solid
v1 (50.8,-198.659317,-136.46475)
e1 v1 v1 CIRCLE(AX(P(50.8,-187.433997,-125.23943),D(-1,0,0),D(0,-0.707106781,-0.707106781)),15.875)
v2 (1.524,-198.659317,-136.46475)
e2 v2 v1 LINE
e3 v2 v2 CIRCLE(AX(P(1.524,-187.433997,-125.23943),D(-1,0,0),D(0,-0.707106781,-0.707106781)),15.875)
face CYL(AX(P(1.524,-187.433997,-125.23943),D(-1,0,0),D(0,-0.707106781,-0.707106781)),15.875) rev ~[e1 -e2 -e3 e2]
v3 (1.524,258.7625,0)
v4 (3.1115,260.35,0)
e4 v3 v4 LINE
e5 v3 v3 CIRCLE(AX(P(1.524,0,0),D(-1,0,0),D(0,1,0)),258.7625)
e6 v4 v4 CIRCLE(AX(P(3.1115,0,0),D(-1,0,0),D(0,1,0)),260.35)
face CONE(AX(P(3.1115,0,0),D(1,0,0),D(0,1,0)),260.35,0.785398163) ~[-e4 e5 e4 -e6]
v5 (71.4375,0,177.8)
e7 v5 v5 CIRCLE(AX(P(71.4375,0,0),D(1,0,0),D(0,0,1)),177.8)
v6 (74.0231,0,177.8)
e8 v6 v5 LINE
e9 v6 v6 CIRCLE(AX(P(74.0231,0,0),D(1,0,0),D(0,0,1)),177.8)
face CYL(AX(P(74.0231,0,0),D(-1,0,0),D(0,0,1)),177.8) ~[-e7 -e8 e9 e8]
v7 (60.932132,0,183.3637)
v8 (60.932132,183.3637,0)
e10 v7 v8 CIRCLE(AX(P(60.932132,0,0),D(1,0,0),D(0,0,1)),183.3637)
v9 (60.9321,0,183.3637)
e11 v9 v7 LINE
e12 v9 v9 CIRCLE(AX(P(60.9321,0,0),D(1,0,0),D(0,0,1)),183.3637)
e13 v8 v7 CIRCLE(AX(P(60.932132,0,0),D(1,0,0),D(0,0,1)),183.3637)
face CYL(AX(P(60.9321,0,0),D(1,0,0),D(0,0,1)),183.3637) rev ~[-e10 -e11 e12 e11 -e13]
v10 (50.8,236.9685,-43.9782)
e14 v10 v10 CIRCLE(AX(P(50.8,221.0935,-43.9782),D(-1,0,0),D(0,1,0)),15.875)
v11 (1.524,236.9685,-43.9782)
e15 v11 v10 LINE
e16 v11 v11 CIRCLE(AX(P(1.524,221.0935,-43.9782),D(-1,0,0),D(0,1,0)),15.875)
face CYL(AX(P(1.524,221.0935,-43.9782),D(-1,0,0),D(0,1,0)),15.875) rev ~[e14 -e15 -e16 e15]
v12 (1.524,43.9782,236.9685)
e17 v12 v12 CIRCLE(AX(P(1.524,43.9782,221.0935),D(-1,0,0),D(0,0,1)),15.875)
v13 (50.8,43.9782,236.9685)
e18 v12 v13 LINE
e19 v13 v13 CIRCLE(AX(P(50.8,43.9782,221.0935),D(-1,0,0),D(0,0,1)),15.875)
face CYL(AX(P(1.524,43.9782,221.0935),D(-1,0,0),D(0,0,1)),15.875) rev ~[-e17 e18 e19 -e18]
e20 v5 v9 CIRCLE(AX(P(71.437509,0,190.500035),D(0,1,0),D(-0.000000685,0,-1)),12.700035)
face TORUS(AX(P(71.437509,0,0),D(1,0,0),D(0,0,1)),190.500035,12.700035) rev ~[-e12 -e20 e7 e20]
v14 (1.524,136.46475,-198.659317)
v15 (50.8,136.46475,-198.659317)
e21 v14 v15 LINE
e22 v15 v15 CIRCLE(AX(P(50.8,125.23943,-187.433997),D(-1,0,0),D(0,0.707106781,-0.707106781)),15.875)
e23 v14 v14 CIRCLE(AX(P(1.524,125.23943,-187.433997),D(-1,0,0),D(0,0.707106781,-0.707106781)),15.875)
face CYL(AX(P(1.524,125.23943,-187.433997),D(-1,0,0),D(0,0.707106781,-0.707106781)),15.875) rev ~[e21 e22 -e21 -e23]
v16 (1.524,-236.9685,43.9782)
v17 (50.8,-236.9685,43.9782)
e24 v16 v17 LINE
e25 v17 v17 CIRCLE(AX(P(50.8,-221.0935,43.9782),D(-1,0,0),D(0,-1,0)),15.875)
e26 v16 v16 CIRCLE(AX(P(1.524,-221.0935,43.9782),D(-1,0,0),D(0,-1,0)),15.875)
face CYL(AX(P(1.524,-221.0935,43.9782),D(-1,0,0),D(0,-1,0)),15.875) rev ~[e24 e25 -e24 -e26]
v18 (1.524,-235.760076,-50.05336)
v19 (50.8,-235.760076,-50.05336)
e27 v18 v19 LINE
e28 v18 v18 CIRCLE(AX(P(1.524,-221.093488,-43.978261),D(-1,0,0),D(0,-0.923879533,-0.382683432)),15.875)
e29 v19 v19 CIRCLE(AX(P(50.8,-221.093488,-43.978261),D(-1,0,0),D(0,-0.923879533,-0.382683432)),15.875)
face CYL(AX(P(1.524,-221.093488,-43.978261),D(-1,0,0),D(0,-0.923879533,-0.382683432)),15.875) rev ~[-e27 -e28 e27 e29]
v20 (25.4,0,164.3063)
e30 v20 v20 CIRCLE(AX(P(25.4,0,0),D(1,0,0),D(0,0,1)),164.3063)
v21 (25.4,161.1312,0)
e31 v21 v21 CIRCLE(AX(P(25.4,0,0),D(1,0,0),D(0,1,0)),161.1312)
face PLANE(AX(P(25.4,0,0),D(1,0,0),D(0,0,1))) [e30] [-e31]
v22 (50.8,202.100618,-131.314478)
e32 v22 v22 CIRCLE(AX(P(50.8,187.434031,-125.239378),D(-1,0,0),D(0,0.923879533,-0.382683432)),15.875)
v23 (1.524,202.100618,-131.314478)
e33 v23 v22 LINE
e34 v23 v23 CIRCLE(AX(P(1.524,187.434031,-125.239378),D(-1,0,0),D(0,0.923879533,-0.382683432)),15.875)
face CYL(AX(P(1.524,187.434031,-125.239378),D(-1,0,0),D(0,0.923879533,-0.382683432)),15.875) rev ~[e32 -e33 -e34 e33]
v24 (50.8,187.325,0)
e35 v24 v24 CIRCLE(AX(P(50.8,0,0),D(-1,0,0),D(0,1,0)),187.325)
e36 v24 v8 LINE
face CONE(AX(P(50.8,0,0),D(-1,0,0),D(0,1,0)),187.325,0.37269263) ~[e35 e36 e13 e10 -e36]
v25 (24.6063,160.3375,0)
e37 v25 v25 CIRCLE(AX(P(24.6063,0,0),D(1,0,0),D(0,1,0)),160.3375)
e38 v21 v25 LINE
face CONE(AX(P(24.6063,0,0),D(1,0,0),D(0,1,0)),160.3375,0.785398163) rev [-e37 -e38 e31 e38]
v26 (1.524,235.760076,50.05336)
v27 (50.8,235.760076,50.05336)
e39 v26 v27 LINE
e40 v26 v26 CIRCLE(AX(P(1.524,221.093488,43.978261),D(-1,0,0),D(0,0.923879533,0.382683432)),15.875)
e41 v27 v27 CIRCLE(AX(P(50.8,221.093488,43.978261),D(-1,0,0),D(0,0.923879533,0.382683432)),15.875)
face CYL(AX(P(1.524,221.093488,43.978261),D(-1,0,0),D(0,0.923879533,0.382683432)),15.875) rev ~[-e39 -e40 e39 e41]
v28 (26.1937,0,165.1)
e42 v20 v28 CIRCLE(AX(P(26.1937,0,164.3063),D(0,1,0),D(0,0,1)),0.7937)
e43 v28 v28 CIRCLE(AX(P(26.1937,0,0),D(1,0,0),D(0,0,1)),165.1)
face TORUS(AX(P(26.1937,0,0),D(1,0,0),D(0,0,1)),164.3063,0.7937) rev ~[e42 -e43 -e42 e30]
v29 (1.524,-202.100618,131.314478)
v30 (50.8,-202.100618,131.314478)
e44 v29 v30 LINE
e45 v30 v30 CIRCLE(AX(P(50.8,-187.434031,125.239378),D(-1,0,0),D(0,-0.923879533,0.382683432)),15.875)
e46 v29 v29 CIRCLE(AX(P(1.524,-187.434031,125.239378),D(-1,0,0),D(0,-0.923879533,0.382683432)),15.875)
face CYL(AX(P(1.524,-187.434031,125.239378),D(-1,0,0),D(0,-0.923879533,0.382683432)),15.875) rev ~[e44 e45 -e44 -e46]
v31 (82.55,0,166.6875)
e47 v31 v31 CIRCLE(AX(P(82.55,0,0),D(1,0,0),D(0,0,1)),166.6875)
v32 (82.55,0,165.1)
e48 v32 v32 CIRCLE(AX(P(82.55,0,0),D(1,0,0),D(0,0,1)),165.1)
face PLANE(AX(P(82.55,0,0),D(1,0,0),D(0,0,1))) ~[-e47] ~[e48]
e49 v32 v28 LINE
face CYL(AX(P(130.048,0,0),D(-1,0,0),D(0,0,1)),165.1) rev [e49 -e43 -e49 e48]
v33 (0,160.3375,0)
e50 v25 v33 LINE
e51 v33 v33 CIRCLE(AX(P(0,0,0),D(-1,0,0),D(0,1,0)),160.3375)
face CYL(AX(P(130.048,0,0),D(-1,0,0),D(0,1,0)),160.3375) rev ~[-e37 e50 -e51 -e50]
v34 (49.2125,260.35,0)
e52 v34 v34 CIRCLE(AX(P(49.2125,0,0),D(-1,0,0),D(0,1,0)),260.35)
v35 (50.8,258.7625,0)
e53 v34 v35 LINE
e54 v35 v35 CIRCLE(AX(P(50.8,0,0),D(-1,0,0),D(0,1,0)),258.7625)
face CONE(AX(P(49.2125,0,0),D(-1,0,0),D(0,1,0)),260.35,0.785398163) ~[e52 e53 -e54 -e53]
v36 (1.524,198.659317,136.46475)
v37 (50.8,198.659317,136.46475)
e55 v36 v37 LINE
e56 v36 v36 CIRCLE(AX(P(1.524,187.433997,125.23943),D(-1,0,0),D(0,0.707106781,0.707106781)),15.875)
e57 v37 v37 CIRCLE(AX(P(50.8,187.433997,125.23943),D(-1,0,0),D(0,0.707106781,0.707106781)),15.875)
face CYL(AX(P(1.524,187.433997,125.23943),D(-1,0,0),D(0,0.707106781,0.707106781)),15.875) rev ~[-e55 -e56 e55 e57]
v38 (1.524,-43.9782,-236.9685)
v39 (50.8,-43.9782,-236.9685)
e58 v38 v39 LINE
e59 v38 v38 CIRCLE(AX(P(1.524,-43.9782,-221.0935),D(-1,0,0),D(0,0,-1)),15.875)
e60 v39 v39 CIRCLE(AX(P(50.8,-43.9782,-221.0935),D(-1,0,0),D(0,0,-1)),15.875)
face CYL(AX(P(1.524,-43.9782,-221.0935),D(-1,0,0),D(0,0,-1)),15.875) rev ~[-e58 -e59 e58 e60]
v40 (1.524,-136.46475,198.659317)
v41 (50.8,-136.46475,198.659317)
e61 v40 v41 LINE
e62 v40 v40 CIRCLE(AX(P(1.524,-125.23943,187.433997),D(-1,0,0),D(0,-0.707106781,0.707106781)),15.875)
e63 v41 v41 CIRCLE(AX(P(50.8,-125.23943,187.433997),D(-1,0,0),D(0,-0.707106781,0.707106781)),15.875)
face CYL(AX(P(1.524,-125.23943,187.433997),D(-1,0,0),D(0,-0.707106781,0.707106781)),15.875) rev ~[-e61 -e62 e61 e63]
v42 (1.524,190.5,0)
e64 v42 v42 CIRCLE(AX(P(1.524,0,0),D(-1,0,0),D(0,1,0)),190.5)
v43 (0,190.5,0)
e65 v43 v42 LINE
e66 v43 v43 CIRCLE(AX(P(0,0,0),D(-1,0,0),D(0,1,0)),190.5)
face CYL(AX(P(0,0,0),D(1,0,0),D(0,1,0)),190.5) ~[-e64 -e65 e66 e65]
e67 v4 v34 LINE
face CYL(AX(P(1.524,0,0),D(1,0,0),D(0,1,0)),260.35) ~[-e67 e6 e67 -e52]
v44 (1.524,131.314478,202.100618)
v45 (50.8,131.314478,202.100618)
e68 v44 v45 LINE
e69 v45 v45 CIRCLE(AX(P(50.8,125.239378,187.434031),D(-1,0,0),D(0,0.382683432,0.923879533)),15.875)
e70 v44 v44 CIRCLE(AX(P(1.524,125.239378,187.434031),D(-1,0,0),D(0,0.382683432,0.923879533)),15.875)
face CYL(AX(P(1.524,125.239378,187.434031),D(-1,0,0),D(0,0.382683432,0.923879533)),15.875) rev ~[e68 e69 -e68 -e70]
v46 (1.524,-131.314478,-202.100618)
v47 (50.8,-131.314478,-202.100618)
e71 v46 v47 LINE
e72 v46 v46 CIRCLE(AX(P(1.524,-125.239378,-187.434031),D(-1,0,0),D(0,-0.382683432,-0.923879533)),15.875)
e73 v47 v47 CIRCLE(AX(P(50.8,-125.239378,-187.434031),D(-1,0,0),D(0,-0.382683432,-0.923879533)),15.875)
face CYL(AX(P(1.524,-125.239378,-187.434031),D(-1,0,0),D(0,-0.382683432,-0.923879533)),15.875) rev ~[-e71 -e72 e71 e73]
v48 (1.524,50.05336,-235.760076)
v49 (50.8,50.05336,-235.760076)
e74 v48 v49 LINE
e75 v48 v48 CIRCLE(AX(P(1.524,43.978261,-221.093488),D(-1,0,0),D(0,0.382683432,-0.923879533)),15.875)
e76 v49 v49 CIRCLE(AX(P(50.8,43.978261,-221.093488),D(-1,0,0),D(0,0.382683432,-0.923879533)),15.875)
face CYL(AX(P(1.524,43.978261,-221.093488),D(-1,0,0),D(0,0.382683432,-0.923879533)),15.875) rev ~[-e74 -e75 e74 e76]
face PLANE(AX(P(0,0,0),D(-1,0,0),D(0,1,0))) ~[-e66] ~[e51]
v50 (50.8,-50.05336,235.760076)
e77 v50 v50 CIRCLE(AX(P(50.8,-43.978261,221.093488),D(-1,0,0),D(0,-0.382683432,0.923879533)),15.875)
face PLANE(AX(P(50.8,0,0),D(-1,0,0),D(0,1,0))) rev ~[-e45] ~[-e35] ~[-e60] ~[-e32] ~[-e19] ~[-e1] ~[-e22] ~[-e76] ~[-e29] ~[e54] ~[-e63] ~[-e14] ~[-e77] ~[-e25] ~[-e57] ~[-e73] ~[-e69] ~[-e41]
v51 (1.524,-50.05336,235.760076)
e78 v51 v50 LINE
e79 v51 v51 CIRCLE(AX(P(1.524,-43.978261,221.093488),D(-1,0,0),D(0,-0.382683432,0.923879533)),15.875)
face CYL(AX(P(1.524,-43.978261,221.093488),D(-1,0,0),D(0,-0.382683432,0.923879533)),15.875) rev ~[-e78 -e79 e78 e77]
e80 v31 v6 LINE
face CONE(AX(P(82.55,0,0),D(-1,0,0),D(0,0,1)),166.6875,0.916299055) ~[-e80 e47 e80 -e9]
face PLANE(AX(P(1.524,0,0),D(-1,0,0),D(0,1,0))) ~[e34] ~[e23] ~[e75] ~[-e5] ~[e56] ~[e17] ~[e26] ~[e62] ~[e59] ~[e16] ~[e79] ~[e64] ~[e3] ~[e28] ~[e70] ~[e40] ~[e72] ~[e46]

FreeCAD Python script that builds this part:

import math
import FreeCAD as App
import Part
import Sketcher

V = App.Vector
Q = App.Units.Quantity


def edges_at(feature, points):
    """Names of the edges that pass closest to the given points."""
    edges = feature.Shape.Edges
    near = lambda p: min(range(len(edges)), key=lambda i: edges[i].distToShape(Part.Vertex(*p))[0])
    return sorted({f"Edge{near(p) + 1}" for p in points})

doc = App.newDocument("Part")
params = doc.addObject("Spreadsheet::Sheet", "Params")
for row, (alias, value) in enumerate([
    ("sketch1_width", "1.94 in"),
    ("sketch1_width2", "0.06 in"),
    ("sketch1_height", "2.75 in"),
    ("sketch1_height2", "1.1875 in"),
    ("sketch1_height3", "0.0625 in"),
    ("revolution_angle", "360 deg"),
    ("sketch2_diameter", "1.25 in"),
    ("chamfer_size", "0.0625 in"),
    ("sketch3_radius", "0.5 in"),
    ("sketch3_height", "0.0625 in"),
    ("sketch3_width", "4.12 in"),
    ("sketch3_height2", "0.1875 in"),
    ("groove_angle", "360 deg"),
    ("fillet_radius", "0.031248 in"),
    ("chamfer2_size", "0.031248 in"),
], start=1):
    params.set(f"A{row}", alias)
    params.set(f"B{row}", "=" + value)
    params.setAlias(f"B{row}", alias)

body = doc.addObject("PartDesign::Body", "Body")

# Sketch on XY plane
sketch1 = body.newObject("Sketcher::SketchObject", "Sketch")
sketch1.AttachmentSupport = (doc.getObject("XY_Plane"), [""])
sketch1.MapMode = "FlatFace"
sketch1.addGeometry([
    Part.LineSegment(V(0, 190.5, 0), V(0, 160.3375, 0)),  # 0
    Part.LineSegment(V(0, 160.3375, 0), V(130.048, 160.3375, 0)),  # 1
    Part.LineSegment(V(130.048, 160.3375, 0), V(130.048, 161.925, 0)),  # 2
    Part.LineSegment(V(130.048, 161.925, 0), V(115.7676, 161.925, 0)),  # 3
    Part.LineSegment(V(115.7676, 161.925, 0), V(50.8, 187.325, 0)),  # 4
    Part.LineSegment(V(50.8, 187.325, 0), V(50.8, 260.35, 0)),  # 5
    Part.LineSegment(V(50.8, 260.35, 0), V(1.524, 260.35, 0)),  # 6
    Part.LineSegment(V(1.524, 260.35, 0), V(1.524, 190.5, 0)),  # 7
    Part.LineSegment(V(1.524, 190.5, 0), V(0, 190.5, 0)),  # 8
], False)
sketch1.addConstraint([
    Sketcher.Constraint("Coincident", 0, 2, 1, 1),
    Sketcher.Constraint("Coincident", 1, 2, 2, 1),
    Sketcher.Constraint("Coincident", 2, 2, 3, 1),
    Sketcher.Constraint("Coincident", 3, 2, 4, 1),
    Sketcher.Constraint("Coincident", 4, 2, 5, 1),
    Sketcher.Constraint("Coincident", 5, 2, 6, 1),
    Sketcher.Constraint("Coincident", 6, 2, 7, 1),
    Sketcher.Constraint("Coincident", 7, 2, 8, 1),
    Sketcher.Constraint("Coincident", 8, 2, 0, 1),
    Sketcher.Constraint("Vertical", 0),
    Sketcher.Constraint("Horizontal", 1),
    Sketcher.Constraint("Vertical", 2),
    Sketcher.Constraint("Horizontal", 3),
    Sketcher.Constraint("Vertical", 5),
    Sketcher.Constraint("Horizontal", 6),
    Sketcher.Constraint("Vertical", 7),
    Sketcher.Constraint("Horizontal", 8),
    Sketcher.Constraint("PointOnObject", 0, 2, -2),
    Sketcher.Constraint("DistanceX", 6, 2, 6, 1, Q("1.94 in")),
    Sketcher.Constraint("DistanceX", 8, 2, 8, 1, Q("0.06 in")),
    Sketcher.Constraint("DistanceX", 6, 2, 2, 2, Q("5.06 in")),
    Sketcher.Constraint("DistanceY", 3, 2, 4, 2, Q("1 in")),
    Sketcher.Constraint("DistanceX", 3, 2, 3, 1, 14.2804),
    Sketcher.Constraint("DistanceY", 7, 2, 7, 1, Q("2.75 in")),
    Sketcher.Constraint("DistanceY", -1, 1, 7, 2, Q("7.5 in")),
    Sketcher.Constraint("DistanceY", 0, 2, 0, 1, Q("1.1875 in")),
    Sketcher.Constraint("DistanceY", 2, 1, 2, 2, Q("0.0625 in")),
])
sketch1.setExpression("Constraints[18]", "Params.sketch1_width")
sketch1.setExpression("Constraints[19]", "Params.sketch1_width2")
sketch1.setExpression("Constraints[23]", "Params.sketch1_height")
sketch1.setExpression("Constraints[25]", "Params.sketch1_height2")
sketch1.setExpression("Constraints[26]", "Params.sketch1_height3")
revolution = body.newObject("PartDesign::Revolution", "Revolution")
revolution.Profile = sketch1
revolution.ReferenceAxis = (sketch1, ["H_Axis"])
revolution.setExpression("Angle", "Params.revolution_angle")

# Sketch on YZ plane
sketch2 = body.newObject("Sketcher::SketchObject", "Sketch001")
sketch2.AttachmentSupport = (doc.getObject("YZ_Plane"), [""])
sketch2.MapMode = "FlatFace"
sketch2.AttachmentOffset = App.Placement(V(0, 0, 0.06 * 25.4), App.Rotation())
sketch2.addGeometry(Part.Circle(V(43.9782, 221.0935, 0), V(0, 0, 1), 15.875), False)
sketch2.addConstraint([
    Sketcher.Constraint("Diameter", 0, Q("1.25 in")),
    Sketcher.Constraint("DistanceX", -1, 1, 0, 3, 43.9782),
    Sketcher.Constraint("DistanceY", -1, 1, 0, 3, 221.0935),
])
sketch2.setExpression("Constraints[0]", "Params.sketch2_diameter")
pocket1 = body.newObject("PartDesign::Pocket", "Pocket")
pocket1.Profile = sketch2
pocket1.Type = "ThroughAll"
pocket1.Reversed = True
doc.recompute()

polarpattern = body.newObject("PartDesign::PolarPattern", "PolarPattern")
polarpattern.Originals = [pocket1]
polarpattern.Axis = (doc.getObject("X_Axis"), [""])
polarpattern.Angle = 360
polarpattern.Occurrences = 16
body.Tip = polarpattern
doc.recompute()

chamfer = body.newObject("PartDesign::Chamfer", "Chamfer")
chamfer.Base = (polarpattern, edges_at(polarpattern, [(1.524, -260.35, 0), (50.8, -260.35, 0)]))
chamfer.setExpression("Size", "Params.chamfer_size")

# Sketch on XZ plane
sketch3 = body.newObject("Sketcher::SketchObject", "Sketch002")
sketch3.AttachmentSupport = (doc.getObject("XZ_Plane"), [""])
sketch3.MapMode = "FlatFace"
sketch3.addGeometry([
    Part.LineSegment(V(130.048, 160.3375, 0), V(25.4, 160.3375, 0)),  # 0
    Part.LineSegment(V(25.4, 160.3375, 0), V(25.4, 165.1, 0)),  # 1
    Part.LineSegment(V(25.4, 165.1, 0), V(82.55, 165.1, 0)),  # 2
    Part.LineSegment(V(82.55, 165.1, 0), V(82.55, 166.6875, 0)),  # 3
    Part.LineSegment(V(82.55, 166.6875, 0), V(74.0231, 177.8, 0)),  # 4
    Part.LineSegment(V(74.0231, 177.8, 0), V(71.4375, 177.8, 0)),  # 5
    Part.ArcOfCircle(Part.Circle(V(71.4375, 190.5, 0), V(0, 0, 1), 12.7), math.radians(-145.8118), math.radians(-90)),  # 6
    Part.LineSegment(V(60.9321, 183.3637, 0), V(130.048, 183.3637, 0)),  # 7
    Part.LineSegment(V(130.048, 183.3637, 0), V(130.048, 160.3375, 0)),  # 8
], False)
sketch3.addConstraint([
    Sketcher.Constraint("Coincident", 0, 2, 1, 1),
    Sketcher.Constraint("Coincident", 1, 2, 2, 1),
    Sketcher.Constraint("Coincident", 2, 2, 3, 1),
    Sketcher.Constraint("Coincident", 3, 2, 4, 1),
    Sketcher.Constraint("Coincident", 4, 2, 5, 1),
    Sketcher.Constraint("Tangent", 5, 2, 6, 2),
    Sketcher.Constraint("Coincident", 6, 1, 7, 1),
    Sketcher.Constraint("Coincident", 7, 2, 8, 1),
    Sketcher.Constraint("Coincident", 8, 2, 0, 1),
    Sketcher.Constraint("Horizontal", 0),
    Sketcher.Constraint("Vertical", 1),
    Sketcher.Constraint("Horizontal", 2),
    Sketcher.Constraint("Vertical", 3),
    Sketcher.Constraint("Horizontal", 5),
    Sketcher.Constraint("Horizontal", 7),
    Sketcher.Constraint("Vertical", 8),
    Sketcher.Constraint("Radius", 6, Q("0.5 in")),
    Sketcher.Constraint("DistanceX", -1, 1, 0, 2, Q("1 in")),
    Sketcher.Constraint("DistanceY", 1, 2, 6, 3, Q("1 in")),
    Sketcher.Constraint("DistanceY", 3, 1, 3, 2, Q("0.0625 in")),
    Sketcher.Constraint("DistanceX", -1, 1, 2, 2, Q("3.25 in")),
    Sketcher.Constraint("DistanceX", 5, 2, 5, 1, Q("0.1018 in")),
    Sketcher.Constraint("DistanceY", -1, 1, 4, 2, Q("7 in")),
    Sketcher.Constraint("DistanceX", 6, 3, 2, 2, Q("0.4375 in")),
    Sketcher.Constraint("DistanceX", 0, 2, 0, 1, Q("4.12 in")),
    Sketcher.Constraint("DistanceY", 1, 1, 1, 2, Q("0.1875 in")),
    Sketcher.Constraint("DistanceX", 7, 1, 7, 2, Q("2.7211 in")),
])
sketch3.setExpression("Constraints[16]", "Params.sketch3_radius")
sketch3.setExpression("Constraints[19]", "Params.sketch3_height")
sketch3.setExpression("Constraints[24]", "Params.sketch3_width")
sketch3.setExpression("Constraints[25]", "Params.sketch3_height2")
groove = body.newObject("PartDesign::Groove", "Groove")
groove.Profile = sketch3
groove.ReferenceAxis = (sketch3, ["H_Axis"])
groove.setExpression("Angle", "Params.groove_angle")
doc.recompute()

fillet = body.newObject("PartDesign::Fillet", "Fillet")
fillet.Base = (groove, edges_at(groove, [(25.4, 0, -165.1)]))
fillet.setExpression("Radius", "Params.fillet_radius")
doc.recompute()

chamfer2 = body.newObject("PartDesign::Chamfer", "Chamfer001")
chamfer2.Base = (fillet, edges_at(fillet, [(25.4, -160.338, 0)]))
chamfer2.setExpression("Size", "Params.chamfer2_size")

doc.recompute()
